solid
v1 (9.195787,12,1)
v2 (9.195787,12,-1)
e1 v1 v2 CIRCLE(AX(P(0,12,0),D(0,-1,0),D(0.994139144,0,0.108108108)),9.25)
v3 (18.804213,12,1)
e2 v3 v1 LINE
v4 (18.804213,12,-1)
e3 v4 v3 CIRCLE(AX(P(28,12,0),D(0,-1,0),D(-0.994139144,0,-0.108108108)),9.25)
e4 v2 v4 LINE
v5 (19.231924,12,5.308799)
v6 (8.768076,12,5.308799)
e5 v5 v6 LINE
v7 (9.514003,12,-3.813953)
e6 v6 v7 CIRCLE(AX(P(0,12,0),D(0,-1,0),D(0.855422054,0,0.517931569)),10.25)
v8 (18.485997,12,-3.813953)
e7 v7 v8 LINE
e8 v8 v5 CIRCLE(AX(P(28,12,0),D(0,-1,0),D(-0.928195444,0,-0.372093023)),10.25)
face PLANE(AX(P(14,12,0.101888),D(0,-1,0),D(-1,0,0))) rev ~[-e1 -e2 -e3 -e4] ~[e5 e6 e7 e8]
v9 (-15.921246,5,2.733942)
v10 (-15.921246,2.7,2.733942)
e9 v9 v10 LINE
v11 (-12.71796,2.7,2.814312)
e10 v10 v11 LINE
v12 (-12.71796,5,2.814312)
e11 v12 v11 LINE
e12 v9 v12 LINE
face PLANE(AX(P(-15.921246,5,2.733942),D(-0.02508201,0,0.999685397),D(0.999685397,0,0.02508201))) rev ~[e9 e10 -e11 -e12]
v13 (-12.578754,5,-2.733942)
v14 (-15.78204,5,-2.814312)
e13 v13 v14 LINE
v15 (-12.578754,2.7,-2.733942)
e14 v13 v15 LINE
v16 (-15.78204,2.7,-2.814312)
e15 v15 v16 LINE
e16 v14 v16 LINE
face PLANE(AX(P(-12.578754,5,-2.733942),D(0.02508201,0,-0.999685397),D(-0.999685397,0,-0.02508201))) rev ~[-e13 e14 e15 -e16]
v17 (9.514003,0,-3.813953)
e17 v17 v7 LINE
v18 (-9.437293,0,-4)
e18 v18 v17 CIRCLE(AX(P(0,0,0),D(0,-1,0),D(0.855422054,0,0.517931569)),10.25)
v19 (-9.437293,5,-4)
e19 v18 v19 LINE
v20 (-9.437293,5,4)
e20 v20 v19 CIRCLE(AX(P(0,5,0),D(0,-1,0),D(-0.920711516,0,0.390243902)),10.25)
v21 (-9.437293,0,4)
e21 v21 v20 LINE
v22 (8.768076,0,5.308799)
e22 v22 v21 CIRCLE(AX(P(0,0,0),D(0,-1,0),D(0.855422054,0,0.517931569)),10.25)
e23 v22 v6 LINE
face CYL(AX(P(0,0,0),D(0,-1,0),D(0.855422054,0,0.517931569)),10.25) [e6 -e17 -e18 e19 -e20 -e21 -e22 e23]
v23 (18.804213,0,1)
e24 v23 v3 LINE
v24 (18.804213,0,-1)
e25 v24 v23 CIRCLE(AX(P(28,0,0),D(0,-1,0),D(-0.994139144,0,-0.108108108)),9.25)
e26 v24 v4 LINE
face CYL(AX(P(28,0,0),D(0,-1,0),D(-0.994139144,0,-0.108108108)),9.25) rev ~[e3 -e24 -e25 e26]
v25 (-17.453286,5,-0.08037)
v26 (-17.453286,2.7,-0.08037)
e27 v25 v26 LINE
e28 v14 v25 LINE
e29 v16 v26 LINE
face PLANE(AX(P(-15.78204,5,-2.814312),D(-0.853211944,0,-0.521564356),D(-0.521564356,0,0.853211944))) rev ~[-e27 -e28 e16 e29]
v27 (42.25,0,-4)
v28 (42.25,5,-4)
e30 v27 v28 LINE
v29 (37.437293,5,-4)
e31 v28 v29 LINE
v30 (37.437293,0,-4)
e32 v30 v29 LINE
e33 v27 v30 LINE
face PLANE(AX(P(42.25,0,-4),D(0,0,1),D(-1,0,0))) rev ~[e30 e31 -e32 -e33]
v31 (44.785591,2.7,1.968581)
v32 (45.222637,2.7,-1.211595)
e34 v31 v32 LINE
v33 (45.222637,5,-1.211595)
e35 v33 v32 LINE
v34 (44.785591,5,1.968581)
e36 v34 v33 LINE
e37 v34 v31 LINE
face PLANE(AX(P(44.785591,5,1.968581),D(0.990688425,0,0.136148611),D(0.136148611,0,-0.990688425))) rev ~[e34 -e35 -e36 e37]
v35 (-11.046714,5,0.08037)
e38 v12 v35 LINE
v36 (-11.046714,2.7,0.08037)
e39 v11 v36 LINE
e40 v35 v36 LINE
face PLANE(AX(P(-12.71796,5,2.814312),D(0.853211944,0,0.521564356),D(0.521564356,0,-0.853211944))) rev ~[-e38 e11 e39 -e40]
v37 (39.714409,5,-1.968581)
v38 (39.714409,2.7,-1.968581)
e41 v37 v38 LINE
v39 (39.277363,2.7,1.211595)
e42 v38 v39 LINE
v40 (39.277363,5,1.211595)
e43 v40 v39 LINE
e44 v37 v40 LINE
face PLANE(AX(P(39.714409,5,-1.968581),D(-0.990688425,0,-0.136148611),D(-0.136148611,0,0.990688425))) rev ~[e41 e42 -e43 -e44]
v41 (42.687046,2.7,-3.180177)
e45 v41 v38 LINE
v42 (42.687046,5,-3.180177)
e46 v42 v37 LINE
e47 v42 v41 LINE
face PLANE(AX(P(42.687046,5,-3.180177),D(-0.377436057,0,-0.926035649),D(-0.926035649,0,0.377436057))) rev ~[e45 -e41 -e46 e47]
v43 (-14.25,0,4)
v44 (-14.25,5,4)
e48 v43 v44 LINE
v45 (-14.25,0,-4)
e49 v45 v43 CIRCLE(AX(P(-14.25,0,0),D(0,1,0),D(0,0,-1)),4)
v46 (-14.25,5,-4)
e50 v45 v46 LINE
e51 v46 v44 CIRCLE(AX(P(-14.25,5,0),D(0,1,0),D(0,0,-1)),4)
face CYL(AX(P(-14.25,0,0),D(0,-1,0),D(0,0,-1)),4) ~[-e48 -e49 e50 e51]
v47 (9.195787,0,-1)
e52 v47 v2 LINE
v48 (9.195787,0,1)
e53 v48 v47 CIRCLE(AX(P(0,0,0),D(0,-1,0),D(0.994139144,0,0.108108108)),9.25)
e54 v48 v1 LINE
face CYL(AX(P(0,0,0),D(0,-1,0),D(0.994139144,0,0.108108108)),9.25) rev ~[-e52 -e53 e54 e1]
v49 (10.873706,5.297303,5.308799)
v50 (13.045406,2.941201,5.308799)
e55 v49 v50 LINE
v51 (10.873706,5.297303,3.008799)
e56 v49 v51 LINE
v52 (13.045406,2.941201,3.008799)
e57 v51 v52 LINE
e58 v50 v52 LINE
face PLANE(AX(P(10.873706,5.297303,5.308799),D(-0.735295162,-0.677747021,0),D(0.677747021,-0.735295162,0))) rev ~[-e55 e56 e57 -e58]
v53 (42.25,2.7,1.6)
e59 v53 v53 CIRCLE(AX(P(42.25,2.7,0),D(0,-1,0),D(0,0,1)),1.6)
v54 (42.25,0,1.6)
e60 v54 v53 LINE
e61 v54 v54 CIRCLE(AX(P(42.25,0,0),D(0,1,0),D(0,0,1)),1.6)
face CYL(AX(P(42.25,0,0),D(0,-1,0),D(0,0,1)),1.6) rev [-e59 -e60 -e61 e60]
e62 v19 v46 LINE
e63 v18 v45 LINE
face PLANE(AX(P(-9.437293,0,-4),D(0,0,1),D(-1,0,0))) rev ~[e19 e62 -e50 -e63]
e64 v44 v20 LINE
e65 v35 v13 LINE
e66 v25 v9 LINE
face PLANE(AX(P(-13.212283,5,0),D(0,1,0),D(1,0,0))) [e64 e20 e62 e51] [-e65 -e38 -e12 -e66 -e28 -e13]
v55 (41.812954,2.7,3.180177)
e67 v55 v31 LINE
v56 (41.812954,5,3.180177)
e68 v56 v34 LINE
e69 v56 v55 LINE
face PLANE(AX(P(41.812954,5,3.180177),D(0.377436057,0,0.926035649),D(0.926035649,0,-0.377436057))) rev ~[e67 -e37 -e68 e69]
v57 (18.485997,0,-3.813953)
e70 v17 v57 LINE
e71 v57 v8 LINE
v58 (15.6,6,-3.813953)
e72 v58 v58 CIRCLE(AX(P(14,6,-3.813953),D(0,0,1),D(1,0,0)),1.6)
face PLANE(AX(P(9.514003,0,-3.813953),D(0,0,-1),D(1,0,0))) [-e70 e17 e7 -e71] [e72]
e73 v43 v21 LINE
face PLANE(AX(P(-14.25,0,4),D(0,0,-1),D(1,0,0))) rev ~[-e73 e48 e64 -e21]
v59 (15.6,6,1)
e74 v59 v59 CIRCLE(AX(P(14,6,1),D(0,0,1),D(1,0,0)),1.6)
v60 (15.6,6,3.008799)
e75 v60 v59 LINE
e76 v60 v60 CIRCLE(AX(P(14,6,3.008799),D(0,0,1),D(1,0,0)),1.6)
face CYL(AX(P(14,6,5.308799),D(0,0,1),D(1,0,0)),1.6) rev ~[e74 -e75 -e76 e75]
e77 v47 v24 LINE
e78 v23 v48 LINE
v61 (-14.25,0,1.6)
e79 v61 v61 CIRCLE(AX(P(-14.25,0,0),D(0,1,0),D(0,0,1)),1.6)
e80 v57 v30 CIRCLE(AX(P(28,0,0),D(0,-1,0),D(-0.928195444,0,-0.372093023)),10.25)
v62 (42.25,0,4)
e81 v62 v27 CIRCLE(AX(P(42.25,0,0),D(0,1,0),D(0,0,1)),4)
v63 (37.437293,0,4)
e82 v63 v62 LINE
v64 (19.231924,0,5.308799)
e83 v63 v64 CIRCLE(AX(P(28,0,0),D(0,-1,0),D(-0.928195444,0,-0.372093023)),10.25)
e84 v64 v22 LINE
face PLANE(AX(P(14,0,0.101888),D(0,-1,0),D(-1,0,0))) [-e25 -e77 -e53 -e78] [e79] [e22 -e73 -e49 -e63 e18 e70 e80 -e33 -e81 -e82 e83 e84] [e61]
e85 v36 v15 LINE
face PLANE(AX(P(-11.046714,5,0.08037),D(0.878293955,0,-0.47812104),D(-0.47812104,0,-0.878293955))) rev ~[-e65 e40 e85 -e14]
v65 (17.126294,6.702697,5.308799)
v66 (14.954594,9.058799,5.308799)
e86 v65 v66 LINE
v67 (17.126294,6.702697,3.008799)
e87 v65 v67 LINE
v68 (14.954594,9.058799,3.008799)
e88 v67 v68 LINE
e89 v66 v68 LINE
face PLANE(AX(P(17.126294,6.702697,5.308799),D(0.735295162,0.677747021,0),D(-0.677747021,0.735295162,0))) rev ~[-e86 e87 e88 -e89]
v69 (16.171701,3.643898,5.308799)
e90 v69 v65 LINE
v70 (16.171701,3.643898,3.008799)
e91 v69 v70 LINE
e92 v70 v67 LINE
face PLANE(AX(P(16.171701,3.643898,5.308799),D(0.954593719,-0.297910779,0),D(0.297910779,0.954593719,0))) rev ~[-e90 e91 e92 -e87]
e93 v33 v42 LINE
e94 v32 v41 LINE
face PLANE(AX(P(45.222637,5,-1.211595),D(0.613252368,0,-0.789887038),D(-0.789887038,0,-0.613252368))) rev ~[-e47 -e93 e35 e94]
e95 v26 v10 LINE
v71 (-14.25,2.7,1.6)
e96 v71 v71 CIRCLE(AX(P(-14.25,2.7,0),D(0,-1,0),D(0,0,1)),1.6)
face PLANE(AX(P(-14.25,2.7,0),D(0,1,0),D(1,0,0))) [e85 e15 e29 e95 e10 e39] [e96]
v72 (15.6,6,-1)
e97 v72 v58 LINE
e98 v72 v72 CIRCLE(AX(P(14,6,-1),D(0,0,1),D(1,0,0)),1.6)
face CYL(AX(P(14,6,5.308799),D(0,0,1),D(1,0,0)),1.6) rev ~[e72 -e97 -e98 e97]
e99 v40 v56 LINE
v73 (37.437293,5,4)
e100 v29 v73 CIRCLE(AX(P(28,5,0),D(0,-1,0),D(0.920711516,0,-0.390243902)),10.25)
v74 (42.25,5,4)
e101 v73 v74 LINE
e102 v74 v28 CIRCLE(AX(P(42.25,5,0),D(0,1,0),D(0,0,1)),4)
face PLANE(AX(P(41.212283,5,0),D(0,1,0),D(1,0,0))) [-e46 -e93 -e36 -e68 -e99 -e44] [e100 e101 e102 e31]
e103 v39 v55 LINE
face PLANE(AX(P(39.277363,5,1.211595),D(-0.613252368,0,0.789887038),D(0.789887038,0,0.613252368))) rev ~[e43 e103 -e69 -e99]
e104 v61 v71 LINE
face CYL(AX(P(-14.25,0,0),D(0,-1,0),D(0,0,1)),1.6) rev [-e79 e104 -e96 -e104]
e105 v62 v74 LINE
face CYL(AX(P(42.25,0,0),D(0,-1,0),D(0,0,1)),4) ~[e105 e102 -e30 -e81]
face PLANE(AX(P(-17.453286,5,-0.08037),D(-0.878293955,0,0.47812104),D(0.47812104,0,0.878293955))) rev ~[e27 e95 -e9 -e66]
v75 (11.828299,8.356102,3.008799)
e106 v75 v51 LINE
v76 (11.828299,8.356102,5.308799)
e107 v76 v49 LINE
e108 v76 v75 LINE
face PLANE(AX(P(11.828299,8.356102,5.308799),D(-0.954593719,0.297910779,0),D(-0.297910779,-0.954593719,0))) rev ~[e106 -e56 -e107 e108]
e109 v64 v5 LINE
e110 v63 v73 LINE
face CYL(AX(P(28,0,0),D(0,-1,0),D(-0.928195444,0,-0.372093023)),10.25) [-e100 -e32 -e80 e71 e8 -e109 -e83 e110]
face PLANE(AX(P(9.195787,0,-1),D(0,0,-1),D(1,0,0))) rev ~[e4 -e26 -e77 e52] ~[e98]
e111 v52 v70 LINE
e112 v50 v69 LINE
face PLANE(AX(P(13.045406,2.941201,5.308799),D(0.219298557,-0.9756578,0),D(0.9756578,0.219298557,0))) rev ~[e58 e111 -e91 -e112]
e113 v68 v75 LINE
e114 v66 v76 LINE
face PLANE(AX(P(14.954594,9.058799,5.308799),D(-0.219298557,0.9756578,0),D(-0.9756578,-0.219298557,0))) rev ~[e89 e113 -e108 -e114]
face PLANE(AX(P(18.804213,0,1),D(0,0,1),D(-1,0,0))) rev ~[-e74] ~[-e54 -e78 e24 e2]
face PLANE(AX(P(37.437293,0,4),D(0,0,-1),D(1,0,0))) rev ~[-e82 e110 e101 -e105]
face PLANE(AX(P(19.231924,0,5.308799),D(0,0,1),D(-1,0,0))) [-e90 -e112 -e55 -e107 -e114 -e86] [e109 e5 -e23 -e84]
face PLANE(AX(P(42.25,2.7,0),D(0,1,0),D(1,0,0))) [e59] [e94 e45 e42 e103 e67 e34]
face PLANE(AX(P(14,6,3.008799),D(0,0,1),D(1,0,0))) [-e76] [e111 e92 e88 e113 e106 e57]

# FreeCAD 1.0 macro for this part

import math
import FreeCAD as App
import Part
import Sketcher
Q = App.Units.Quantity


def add_polygon(sketch, points):
    """Adds a closed chain of lines whose ends are joined by coincident constraints."""
    first, n = sketch.GeometryCount, len(points)
    for a, b in zip(points, points[1:] + points[:1]):
        sketch.addGeometry(Part.LineSegment(App.Vector(*a, 0), App.Vector(*b, 0)), False)
    for i in range(n):
        sketch.addConstraint(Sketcher.Constraint("Coincident", first + i, 2, first + (i + 1) % n, 1))

doc = App.newDocument("Part")
params = doc.addObject("Spreadsheet::Sheet", "Params")
for row, (alias, value) in enumerate([
    ("sketch1_radius", "4 mm"),
    ("sketch1_diameter", "3.2 mm"),
    ("sketch1_radius2", "10.25 mm"),
    ("pad1_length", "5 mm"),
    ("sketch2_radius", "4 mm"),
    ("sketch2_diameter", "3.2 mm"),
    ("sketch2_radius2", "10.25 mm"),
    ("pad2_length", "5 mm"),
    ("sketch3_radius", "10.25 mm"),
    ("sketch3_radius2", "9.25 mm"),
    ("pad3_length", "12 mm"),
    ("pocket1_length", "2.3 mm"),
    ("pocket2_length", "2.3 mm"),
    ("sketch6_diameter", "3.2 mm"),
    ("pocket3_length", "15 mm"),
    ("pocket4_length", "2.3 mm"),
], start=1):
    params.set(f"A{row}", alias)
    params.set(f"B{row}", "=" + value)
    params.setAlias(f"B{row}", alias)

body = doc.addObject("PartDesign::Body", "Body")

# Sketch on XZ plane
sketch1 = body.newObject("Sketcher::SketchObject", "Sketch")
sketch1.AttachmentSupport = (doc.getObject("XZ_Plane"), [""])
sketch1.MapMode = "FlatFace"
sketch1.addGeometry(Part.ArcOfCircle(Part.Circle(App.Vector(0, 0, 0), App.Vector(0, 0, 1), 10.2), math.radians(157), math.radians(203)), False)
sketch1.addGeometry(Part.LineSegment(App.Vector(-9.4, -4, 0), App.Vector(-14.2, -4, 0)), False)
sketch1.addGeometry(Part.ArcOfCircle(Part.Circle(App.Vector(-14.2, 0, 0), App.Vector(0, 0, 1), 4), math.radians(90), math.radians(270)), False)
sketch1.addGeometry(Part.LineSegment(App.Vector(-14.2, 4, 0), App.Vector(-9.4, 4, 0)), False)
sketch1.addGeometry(Part.Circle(App.Vector(-14.2, 0, 0), App.Vector(0, 0, 1), 1.6), False)
sketch1.addConstraint(Sketcher.Constraint("Coincident", 0, 2, 1, 1))
sketch1.addConstraint(Sketcher.Constraint("Tangent", 1, 2, 2, 2))
sketch1.addConstraint(Sketcher.Constraint("Tangent", 2, 1, 3, 1))
sketch1.addConstraint(Sketcher.Constraint("Coincident", 3, 2, 0, 1))
sketch1.addConstraint(Sketcher.Constraint("Horizontal", 1))
sketch1.addConstraint(Sketcher.Constraint("Horizontal", 3))
sketch1.addConstraint(Sketcher.Constraint("Coincident", 0, 3, -1, 1))
sketch1.addConstraint(Sketcher.Constraint("Coincident", 4, 3, 2, 3))
sketch1.addConstraint(Sketcher.Constraint("PointOnObject", 2, 3, -1))
sketch1.addConstraint(Sketcher.Constraint("Radius", 2, Q("4 mm")))
sketch1.addConstraint(Sketcher.Constraint("Diameter", 4, Q("3.2 mm")))
sketch1.addConstraint(Sketcher.Constraint("Radius", 0, Q("10.25 mm")))
sketch1.addConstraint(Sketcher.Constraint("DistanceX", 2, 3, -1, 1, Q("14.25 mm")))
sketch1.setExpression("Constraints[9]", "Params.sketch1_radius")
sketch1.setExpression("Constraints[10]", "Params.sketch1_diameter")
sketch1.setExpression("Constraints[11]", "Params.sketch1_radius2")
pad1 = body.newObject("PartDesign::Pad", "Pad")
pad1.Profile = sketch1
pad1.setExpression("Length", "Params.pad1_length")
pad1.Reversed = True
body2 = doc.addObject("PartDesign::Body", "Body001")

# Sketch on XZ plane
sketch2 = body2.newObject("Sketcher::SketchObject", "Sketch001")
sketch2.AttachmentSupport = (doc.getObject("XZ_Plane001"), [""])
sketch2.MapMode = "FlatFace"
sketch2.addGeometry(Part.LineSegment(App.Vector(42.2, -4, 0), App.Vector(37.4, -4, 0)), False)
sketch2.addGeometry(Part.ArcOfCircle(Part.Circle(App.Vector(28, 0, 0), App.Vector(0, 0, 1), 10.2), math.radians(-23), math.radians(23)), False)
sketch2.addGeometry(Part.LineSegment(App.Vector(37.4, 4, 0), App.Vector(42.2, 4, 0)), False)
sketch2.addGeometry(Part.ArcOfCircle(Part.Circle(App.Vector(42.2, 0, 0), App.Vector(0, 0, 1), 4), math.radians(-90), math.radians(90)), False)
sketch2.addGeometry(Part.Circle(App.Vector(42.2, 0, 0), App.Vector(0, 0, 1), 1.6), False)
sketch2.addConstraint(Sketcher.Constraint("Coincident", 0, 2, 1, 1))
sketch2.addConstraint(Sketcher.Constraint("Coincident", 1, 2, 2, 1))
sketch2.addConstraint(Sketcher.Constraint("Tangent", 2, 2, 3, 2))
sketch2.addConstraint(Sketcher.Constraint("Tangent", 3, 1, 0, 1))
sketch2.addConstraint(Sketcher.Constraint("Horizontal", 0))
sketch2.addConstraint(Sketcher.Constraint("Horizontal", 2))
sketch2.addConstraint(Sketcher.Constraint("Coincident", 4, 3, 3, 3))
sketch2.addConstraint(Sketcher.Constraint("Symmetric", 0, 2, 1, 2, -1))
sketch2.addConstraint(Sketcher.Constraint("Radius", 3, Q("4 mm")))
sketch2.addConstraint(Sketcher.Constraint("Diameter", 4, Q("3.2 mm")))
sketch2.addConstraint(Sketcher.Constraint("Radius", 1, Q("10.25 mm")))
sketch2.addConstraint(Sketcher.Constraint("DistanceX", -1, 1, 1, 3, Q("28 mm")))
sketch2.addConstraint(Sketcher.Constraint("DistanceX", -1, 1, 3, 3, Q("42.25 mm")))
sketch2.setExpression("Constraints[8]", "Params.sketch2_radius")
sketch2.setExpression("Constraints[9]", "Params.sketch2_diameter")
sketch2.setExpression("Constraints[10]", "Params.sketch2_radius2")
pad2 = body2.newObject("PartDesign::Pad", "Pad001")
pad2.Profile = sketch2
pad2.setExpression("Length", "Params.pad2_length")
pad2.Reversed = True
body.AllowCompound = True
doc.recompute()

boolean = body.newObject("PartDesign::Boolean", "Boolean")
boolean.Type = "Fuse"
boolean.addObjects([body2])

# Sketch on XZ plane
sketch3 = body.newObject("Sketcher::SketchObject", "Sketch002")
sketch3.AttachmentSupport = (doc.getObject("XZ_Plane"), [""])
sketch3.MapMode = "FlatFace"
sketch3.addGeometry(Part.LineSegment(App.Vector(18.5, -3.8, 0), App.Vector(9.5, -3.8, 0)), False)
sketch3.addGeometry(Part.ArcOfCircle(Part.Circle(App.Vector(0, 0, 0), App.Vector(0, 0, 1), 10.2), math.radians(31), math.radians(338)), False)
sketch3.addGeometry(Part.LineSegment(App.Vector(8.8, 5.3, 0), App.Vector(19.2, 5.3, 0)), False)
sketch3.addGeometry(Part.ArcOfCircle(Part.Circle(App.Vector(28, 0, 0), App.Vector(0, 0, 1), 10.2), math.radians(-158), math.radians(149)), False)
sketch3.addGeometry(Part.LineSegment(App.Vector(9.2, -1, 0), App.Vector(18.8, -1, 0)), False)
sketch3.addGeometry(Part.ArcOfCircle(Part.Circle(App.Vector(28, 0, 0), App.Vector(0, 0, 1), 9.2), math.radians(-174), math.radians(174)), False)
sketch3.addGeometry(Part.LineSegment(App.Vector(18.8, 1, 0), App.Vector(9.2, 1, 0)), False)
sketch3.addGeometry(Part.ArcOfCircle(Part.Circle(App.Vector(0, 0, 0), App.Vector(0, 0, 1), 9.2), math.radians(6), math.radians(354)), False)
sketch3.addConstraint(Sketcher.Constraint("Coincident", 0, 2, 1, 2))
sketch3.addConstraint(Sketcher.Constraint("Coincident", 1, 1, 2, 1))
sketch3.addConstraint(Sketcher.Constraint("Coincident", 2, 2, 3, 2))
sketch3.addConstraint(Sketcher.Constraint("Coincident", 3, 1, 0, 1))
sketch3.addConstraint(Sketcher.Constraint("Coincident", 4, 2, 5, 1))
sketch3.addConstraint(Sketcher.Constraint("Coincident", 5, 2, 6, 1))
sketch3.addConstraint(Sketcher.Constraint("Coincident", 6, 2, 7, 1))
sketch3.addConstraint(Sketcher.Constraint("Coincident", 7, 2, 4, 1))
sketch3.addConstraint(Sketcher.Constraint("Horizontal", 0))
sketch3.addConstraint(Sketcher.Constraint("Horizontal", 2))
sketch3.addConstraint(Sketcher.Constraint("Horizontal", 4))
sketch3.addConstraint(Sketcher.Constraint("Horizontal", 6))
sketch3.addConstraint(Sketcher.Constraint("Coincident", 1, 3, -1, 1))
sketch3.addConstraint(Sketcher.Constraint("Coincident", 7, 3, -1, 1))
sketch3.addConstraint(Sketcher.Constraint("Coincident", 5, 3, 3, 3))
sketch3.addConstraint(Sketcher.Constraint("Equal", 1, 3))
sketch3.addConstraint(Sketcher.Constraint("Equal", 5, 7))
sketch3.addConstraint(Sketcher.Constraint("Symmetric", 4, 2, 5, 2, -1))
sketch3.addConstraint(Sketcher.Constraint("Radius", 1, Q("10.25 mm")))
sketch3.addConstraint(Sketcher.Constraint("Radius", 5, Q("9.25 mm")))
sketch3.addConstraint(Sketcher.Constraint("DistanceX", -1, 1, 3, 3, Q("28 mm")))
sketch3.addConstraint(Sketcher.Constraint("DistanceY", 4, 2, -1, 1, Q("1 mm")))
sketch3.addConstraint(Sketcher.Constraint("DistanceY", -1, 1, 1, 1, Q("5.308799 mm")))
sketch3.addConstraint(Sketcher.Constraint("DistanceX", 0, 2, 0, 1, Q("8.971993 mm")))
sketch3.setExpression("Constraints[18]", "Params.sketch3_radius")
sketch3.setExpression("Constraints[19]", "Params.sketch3_radius2")
pad3 = body.newObject("PartDesign::Pad", "Pad002")
pad3.Profile = sketch3
pad3.setExpression("Length", "Params.pad3_length")
pad3.Reversed = True

# Sketch on XZ plane
sketch4 = body.newObject("Sketcher::SketchObject", "Sketch003")
sketch4.AttachmentSupport = (doc.getObject("XZ_Plane"), [""])
sketch4.MapMode = "FlatFace"
sketch4.AttachmentOffset = App.Placement(App.Vector(0, 0, -5), App.Rotation())
add_polygon(sketch4, [(-15.8, -2.8), (-17.5, -0.1), (-15.9, 2.7), (-12.7, 2.8), (-11, 0.1), (-12.6, -2.7)])  # lines 0-5
sketch4.addConstraint(Sketcher.Constraint("Parallel", 0, 3))
sketch4.addConstraint(Sketcher.Constraint("Parallel", 1, 4))
sketch4.addConstraint(Sketcher.Constraint("Parallel", 2, 5))
sketch4.addConstraint(Sketcher.Constraint("Equal", 0, 1))
sketch4.addConstraint(Sketcher.Constraint("Equal", 1, 2))
sketch4.addConstraint(Sketcher.Constraint("Equal", 2, 3))
sketch4.addConstraint(Sketcher.Constraint("DistanceY", 0, 2, -1, 1, Q("0.08037 mm")))
sketch4.addConstraint(Sketcher.Constraint("DistanceY", -1, 1, 1, 2, Q("2.733942 mm")))
sketch4.addConstraint(Sketcher.Constraint("DistanceX", 2, 2, -1, 1, Q("12.71796 mm")))
sketch4.addConstraint(Sketcher.Constraint("DistanceY", -1, 1, 3, 2, Q("0.08037 mm")))
sketch4.addConstraint(Sketcher.Constraint("DistanceX", 5, 2, -1, 1, Q("15.78204 mm")))
sketch4.addConstraint(Sketcher.Constraint("DistanceX", 0, 2, 1, 2, Q("1.53204 mm")))
pocket1 = body.newObject("PartDesign::Pocket", "Pocket")
pocket1.Profile = sketch4
pocket1.setExpression("Length", "Params.pocket1_length")
pocket1.Reversed = True

# Sketch on XZ plane
sketch5 = body.newObject("Sketcher::SketchObject", "Sketch004")
sketch5.AttachmentSupport = (doc.getObject("XZ_Plane"), [""])
sketch5.MapMode = "FlatFace"
sketch5.AttachmentOffset = App.Placement(App.Vector(0, 0, -5), App.Rotation())
add_polygon(sketch5, [(42.7, -3.2), (39.7, -2), (39.3, 1.2), (41.8, 3.2), (44.8, 2), (45.2, -1.2)])  # lines 0-5
sketch5.addConstraint(Sketcher.Constraint("Parallel", 0, 3))
sketch5.addConstraint(Sketcher.Constraint("Parallel", 1, 4))
sketch5.addConstraint(Sketcher.Constraint("Parallel", 2, 5))
sketch5.addConstraint(Sketcher.Constraint("Equal", 0, 1))
sketch5.addConstraint(Sketcher.Constraint("Equal", 1, 2))
sketch5.addConstraint(Sketcher.Constraint("Equal", 2, 3))
sketch5.addConstraint(Sketcher.Constraint("DistanceX", -1, 1, 0, 2, Q("39.714409 mm")))
sketch5.addConstraint(Sketcher.Constraint("DistanceY", 0, 2, -1, 1, Q("1.968581 mm")))
sketch5.addConstraint(Sketcher.Constraint("DistanceX", -1, 1, 3, 2, Q("44.785591 mm")))
sketch5.addConstraint(Sketcher.Constraint("DistanceY", -1, 1, 3, 2, Q("1.968581 mm")))
sketch5.addConstraint(Sketcher.Constraint("DistanceX", 1, 2, 2, 2, Q("2.535591 mm")))
sketch5.addConstraint(Sketcher.Constraint("DistanceY", 1, 2, 2, 2, Q("1.968581 mm")))
pocket2 = body.newObject("PartDesign::Pocket", "Pocket001")
pocket2.Profile = sketch5
pocket2.setExpression("Length", "Params.pocket2_length")
pocket2.Reversed = True

# Sketch on XY plane
sketch6 = body.newObject("Sketcher::SketchObject", "Sketch005")
sketch6.AttachmentSupport = (doc.getObject("XY_Plane"), [""])
sketch6.MapMode = "FlatFace"
sketch6.AttachmentOffset = App.Placement(App.Vector(0, 0, 5.308799), App.Rotation())
sketch6.addGeometry(Part.Circle(App.Vector(14, 6, 0), App.Vector(0, 0, 1), 1.6), False)
sketch6.addConstraint(Sketcher.Constraint("Diameter", 0, Q("3.2 mm")))
sketch6.addConstraint(Sketcher.Constraint("DistanceX", -1, 1, 0, 3, Q("14 mm")))
sketch6.addConstraint(Sketcher.Constraint("DistanceY", -1, 1, 0, 3, Q("6 mm")))
sketch6.setExpression("Constraints[0]", "Params.sketch6_diameter")
pocket3 = body.newObject("PartDesign::Pocket", "Pocket002")
pocket3.Profile = sketch6
pocket3.setExpression("Length", "Params.pocket3_length")

# Sketch on XY plane
sketch7 = body.newObject("Sketcher::SketchObject", "Sketch006")
sketch7.AttachmentSupport = (doc.getObject("XY_Plane"), [""])
sketch7.MapMode = "FlatFace"
sketch7.AttachmentOffset = App.Placement(App.Vector(0, 0, 5.308799), App.Rotation())
add_polygon(sketch7, [(15, 9.1), (11.8, 8.4), (10.9, 5.3), (13, 2.9), (16.2, 3.6), (17.1, 6.7)])  # lines 0-5
sketch7.addConstraint(Sketcher.Constraint("Parallel", 0, 3))
sketch7.addConstraint(Sketcher.Constraint("Parallel", 1, 4))
sketch7.addConstraint(Sketcher.Constraint("Parallel", 2, 5))
sketch7.addConstraint(Sketcher.Constraint("Equal", 0, 1))
sketch7.addConstraint(Sketcher.Constraint("Equal", 1, 2))
sketch7.addConstraint(Sketcher.Constraint("Equal", 2, 3))
sketch7.addConstraint(Sketcher.Constraint("DistanceX", -1, 1, 0, 2, Q("11.828299 mm")))
sketch7.addConstraint(Sketcher.Constraint("DistanceY", -1, 1, 0, 2, Q("8.356102 mm")))
sketch7.addConstraint(Sketcher.Constraint("DistanceY", -1, 1, 2, 2, Q("2.941201 mm")))
sketch7.addConstraint(Sketcher.Constraint("DistanceX", -1, 1, 3, 2, Q("16.171701 mm")))
sketch7.addConstraint(Sketcher.Constraint("DistanceY", -1, 1, 3, 2, Q("3.643898 mm")))
sketch7.addConstraint(Sketcher.Constraint("DistanceY", 1, 2, 0, 2, Q("3.058799 mm")))
pocket4 = body.newObject("PartDesign::Pocket", "Pocket003")
pocket4.Profile = sketch7
pocket4.setExpression("Length", "Params.pocket4_length")

doc.recompute()
